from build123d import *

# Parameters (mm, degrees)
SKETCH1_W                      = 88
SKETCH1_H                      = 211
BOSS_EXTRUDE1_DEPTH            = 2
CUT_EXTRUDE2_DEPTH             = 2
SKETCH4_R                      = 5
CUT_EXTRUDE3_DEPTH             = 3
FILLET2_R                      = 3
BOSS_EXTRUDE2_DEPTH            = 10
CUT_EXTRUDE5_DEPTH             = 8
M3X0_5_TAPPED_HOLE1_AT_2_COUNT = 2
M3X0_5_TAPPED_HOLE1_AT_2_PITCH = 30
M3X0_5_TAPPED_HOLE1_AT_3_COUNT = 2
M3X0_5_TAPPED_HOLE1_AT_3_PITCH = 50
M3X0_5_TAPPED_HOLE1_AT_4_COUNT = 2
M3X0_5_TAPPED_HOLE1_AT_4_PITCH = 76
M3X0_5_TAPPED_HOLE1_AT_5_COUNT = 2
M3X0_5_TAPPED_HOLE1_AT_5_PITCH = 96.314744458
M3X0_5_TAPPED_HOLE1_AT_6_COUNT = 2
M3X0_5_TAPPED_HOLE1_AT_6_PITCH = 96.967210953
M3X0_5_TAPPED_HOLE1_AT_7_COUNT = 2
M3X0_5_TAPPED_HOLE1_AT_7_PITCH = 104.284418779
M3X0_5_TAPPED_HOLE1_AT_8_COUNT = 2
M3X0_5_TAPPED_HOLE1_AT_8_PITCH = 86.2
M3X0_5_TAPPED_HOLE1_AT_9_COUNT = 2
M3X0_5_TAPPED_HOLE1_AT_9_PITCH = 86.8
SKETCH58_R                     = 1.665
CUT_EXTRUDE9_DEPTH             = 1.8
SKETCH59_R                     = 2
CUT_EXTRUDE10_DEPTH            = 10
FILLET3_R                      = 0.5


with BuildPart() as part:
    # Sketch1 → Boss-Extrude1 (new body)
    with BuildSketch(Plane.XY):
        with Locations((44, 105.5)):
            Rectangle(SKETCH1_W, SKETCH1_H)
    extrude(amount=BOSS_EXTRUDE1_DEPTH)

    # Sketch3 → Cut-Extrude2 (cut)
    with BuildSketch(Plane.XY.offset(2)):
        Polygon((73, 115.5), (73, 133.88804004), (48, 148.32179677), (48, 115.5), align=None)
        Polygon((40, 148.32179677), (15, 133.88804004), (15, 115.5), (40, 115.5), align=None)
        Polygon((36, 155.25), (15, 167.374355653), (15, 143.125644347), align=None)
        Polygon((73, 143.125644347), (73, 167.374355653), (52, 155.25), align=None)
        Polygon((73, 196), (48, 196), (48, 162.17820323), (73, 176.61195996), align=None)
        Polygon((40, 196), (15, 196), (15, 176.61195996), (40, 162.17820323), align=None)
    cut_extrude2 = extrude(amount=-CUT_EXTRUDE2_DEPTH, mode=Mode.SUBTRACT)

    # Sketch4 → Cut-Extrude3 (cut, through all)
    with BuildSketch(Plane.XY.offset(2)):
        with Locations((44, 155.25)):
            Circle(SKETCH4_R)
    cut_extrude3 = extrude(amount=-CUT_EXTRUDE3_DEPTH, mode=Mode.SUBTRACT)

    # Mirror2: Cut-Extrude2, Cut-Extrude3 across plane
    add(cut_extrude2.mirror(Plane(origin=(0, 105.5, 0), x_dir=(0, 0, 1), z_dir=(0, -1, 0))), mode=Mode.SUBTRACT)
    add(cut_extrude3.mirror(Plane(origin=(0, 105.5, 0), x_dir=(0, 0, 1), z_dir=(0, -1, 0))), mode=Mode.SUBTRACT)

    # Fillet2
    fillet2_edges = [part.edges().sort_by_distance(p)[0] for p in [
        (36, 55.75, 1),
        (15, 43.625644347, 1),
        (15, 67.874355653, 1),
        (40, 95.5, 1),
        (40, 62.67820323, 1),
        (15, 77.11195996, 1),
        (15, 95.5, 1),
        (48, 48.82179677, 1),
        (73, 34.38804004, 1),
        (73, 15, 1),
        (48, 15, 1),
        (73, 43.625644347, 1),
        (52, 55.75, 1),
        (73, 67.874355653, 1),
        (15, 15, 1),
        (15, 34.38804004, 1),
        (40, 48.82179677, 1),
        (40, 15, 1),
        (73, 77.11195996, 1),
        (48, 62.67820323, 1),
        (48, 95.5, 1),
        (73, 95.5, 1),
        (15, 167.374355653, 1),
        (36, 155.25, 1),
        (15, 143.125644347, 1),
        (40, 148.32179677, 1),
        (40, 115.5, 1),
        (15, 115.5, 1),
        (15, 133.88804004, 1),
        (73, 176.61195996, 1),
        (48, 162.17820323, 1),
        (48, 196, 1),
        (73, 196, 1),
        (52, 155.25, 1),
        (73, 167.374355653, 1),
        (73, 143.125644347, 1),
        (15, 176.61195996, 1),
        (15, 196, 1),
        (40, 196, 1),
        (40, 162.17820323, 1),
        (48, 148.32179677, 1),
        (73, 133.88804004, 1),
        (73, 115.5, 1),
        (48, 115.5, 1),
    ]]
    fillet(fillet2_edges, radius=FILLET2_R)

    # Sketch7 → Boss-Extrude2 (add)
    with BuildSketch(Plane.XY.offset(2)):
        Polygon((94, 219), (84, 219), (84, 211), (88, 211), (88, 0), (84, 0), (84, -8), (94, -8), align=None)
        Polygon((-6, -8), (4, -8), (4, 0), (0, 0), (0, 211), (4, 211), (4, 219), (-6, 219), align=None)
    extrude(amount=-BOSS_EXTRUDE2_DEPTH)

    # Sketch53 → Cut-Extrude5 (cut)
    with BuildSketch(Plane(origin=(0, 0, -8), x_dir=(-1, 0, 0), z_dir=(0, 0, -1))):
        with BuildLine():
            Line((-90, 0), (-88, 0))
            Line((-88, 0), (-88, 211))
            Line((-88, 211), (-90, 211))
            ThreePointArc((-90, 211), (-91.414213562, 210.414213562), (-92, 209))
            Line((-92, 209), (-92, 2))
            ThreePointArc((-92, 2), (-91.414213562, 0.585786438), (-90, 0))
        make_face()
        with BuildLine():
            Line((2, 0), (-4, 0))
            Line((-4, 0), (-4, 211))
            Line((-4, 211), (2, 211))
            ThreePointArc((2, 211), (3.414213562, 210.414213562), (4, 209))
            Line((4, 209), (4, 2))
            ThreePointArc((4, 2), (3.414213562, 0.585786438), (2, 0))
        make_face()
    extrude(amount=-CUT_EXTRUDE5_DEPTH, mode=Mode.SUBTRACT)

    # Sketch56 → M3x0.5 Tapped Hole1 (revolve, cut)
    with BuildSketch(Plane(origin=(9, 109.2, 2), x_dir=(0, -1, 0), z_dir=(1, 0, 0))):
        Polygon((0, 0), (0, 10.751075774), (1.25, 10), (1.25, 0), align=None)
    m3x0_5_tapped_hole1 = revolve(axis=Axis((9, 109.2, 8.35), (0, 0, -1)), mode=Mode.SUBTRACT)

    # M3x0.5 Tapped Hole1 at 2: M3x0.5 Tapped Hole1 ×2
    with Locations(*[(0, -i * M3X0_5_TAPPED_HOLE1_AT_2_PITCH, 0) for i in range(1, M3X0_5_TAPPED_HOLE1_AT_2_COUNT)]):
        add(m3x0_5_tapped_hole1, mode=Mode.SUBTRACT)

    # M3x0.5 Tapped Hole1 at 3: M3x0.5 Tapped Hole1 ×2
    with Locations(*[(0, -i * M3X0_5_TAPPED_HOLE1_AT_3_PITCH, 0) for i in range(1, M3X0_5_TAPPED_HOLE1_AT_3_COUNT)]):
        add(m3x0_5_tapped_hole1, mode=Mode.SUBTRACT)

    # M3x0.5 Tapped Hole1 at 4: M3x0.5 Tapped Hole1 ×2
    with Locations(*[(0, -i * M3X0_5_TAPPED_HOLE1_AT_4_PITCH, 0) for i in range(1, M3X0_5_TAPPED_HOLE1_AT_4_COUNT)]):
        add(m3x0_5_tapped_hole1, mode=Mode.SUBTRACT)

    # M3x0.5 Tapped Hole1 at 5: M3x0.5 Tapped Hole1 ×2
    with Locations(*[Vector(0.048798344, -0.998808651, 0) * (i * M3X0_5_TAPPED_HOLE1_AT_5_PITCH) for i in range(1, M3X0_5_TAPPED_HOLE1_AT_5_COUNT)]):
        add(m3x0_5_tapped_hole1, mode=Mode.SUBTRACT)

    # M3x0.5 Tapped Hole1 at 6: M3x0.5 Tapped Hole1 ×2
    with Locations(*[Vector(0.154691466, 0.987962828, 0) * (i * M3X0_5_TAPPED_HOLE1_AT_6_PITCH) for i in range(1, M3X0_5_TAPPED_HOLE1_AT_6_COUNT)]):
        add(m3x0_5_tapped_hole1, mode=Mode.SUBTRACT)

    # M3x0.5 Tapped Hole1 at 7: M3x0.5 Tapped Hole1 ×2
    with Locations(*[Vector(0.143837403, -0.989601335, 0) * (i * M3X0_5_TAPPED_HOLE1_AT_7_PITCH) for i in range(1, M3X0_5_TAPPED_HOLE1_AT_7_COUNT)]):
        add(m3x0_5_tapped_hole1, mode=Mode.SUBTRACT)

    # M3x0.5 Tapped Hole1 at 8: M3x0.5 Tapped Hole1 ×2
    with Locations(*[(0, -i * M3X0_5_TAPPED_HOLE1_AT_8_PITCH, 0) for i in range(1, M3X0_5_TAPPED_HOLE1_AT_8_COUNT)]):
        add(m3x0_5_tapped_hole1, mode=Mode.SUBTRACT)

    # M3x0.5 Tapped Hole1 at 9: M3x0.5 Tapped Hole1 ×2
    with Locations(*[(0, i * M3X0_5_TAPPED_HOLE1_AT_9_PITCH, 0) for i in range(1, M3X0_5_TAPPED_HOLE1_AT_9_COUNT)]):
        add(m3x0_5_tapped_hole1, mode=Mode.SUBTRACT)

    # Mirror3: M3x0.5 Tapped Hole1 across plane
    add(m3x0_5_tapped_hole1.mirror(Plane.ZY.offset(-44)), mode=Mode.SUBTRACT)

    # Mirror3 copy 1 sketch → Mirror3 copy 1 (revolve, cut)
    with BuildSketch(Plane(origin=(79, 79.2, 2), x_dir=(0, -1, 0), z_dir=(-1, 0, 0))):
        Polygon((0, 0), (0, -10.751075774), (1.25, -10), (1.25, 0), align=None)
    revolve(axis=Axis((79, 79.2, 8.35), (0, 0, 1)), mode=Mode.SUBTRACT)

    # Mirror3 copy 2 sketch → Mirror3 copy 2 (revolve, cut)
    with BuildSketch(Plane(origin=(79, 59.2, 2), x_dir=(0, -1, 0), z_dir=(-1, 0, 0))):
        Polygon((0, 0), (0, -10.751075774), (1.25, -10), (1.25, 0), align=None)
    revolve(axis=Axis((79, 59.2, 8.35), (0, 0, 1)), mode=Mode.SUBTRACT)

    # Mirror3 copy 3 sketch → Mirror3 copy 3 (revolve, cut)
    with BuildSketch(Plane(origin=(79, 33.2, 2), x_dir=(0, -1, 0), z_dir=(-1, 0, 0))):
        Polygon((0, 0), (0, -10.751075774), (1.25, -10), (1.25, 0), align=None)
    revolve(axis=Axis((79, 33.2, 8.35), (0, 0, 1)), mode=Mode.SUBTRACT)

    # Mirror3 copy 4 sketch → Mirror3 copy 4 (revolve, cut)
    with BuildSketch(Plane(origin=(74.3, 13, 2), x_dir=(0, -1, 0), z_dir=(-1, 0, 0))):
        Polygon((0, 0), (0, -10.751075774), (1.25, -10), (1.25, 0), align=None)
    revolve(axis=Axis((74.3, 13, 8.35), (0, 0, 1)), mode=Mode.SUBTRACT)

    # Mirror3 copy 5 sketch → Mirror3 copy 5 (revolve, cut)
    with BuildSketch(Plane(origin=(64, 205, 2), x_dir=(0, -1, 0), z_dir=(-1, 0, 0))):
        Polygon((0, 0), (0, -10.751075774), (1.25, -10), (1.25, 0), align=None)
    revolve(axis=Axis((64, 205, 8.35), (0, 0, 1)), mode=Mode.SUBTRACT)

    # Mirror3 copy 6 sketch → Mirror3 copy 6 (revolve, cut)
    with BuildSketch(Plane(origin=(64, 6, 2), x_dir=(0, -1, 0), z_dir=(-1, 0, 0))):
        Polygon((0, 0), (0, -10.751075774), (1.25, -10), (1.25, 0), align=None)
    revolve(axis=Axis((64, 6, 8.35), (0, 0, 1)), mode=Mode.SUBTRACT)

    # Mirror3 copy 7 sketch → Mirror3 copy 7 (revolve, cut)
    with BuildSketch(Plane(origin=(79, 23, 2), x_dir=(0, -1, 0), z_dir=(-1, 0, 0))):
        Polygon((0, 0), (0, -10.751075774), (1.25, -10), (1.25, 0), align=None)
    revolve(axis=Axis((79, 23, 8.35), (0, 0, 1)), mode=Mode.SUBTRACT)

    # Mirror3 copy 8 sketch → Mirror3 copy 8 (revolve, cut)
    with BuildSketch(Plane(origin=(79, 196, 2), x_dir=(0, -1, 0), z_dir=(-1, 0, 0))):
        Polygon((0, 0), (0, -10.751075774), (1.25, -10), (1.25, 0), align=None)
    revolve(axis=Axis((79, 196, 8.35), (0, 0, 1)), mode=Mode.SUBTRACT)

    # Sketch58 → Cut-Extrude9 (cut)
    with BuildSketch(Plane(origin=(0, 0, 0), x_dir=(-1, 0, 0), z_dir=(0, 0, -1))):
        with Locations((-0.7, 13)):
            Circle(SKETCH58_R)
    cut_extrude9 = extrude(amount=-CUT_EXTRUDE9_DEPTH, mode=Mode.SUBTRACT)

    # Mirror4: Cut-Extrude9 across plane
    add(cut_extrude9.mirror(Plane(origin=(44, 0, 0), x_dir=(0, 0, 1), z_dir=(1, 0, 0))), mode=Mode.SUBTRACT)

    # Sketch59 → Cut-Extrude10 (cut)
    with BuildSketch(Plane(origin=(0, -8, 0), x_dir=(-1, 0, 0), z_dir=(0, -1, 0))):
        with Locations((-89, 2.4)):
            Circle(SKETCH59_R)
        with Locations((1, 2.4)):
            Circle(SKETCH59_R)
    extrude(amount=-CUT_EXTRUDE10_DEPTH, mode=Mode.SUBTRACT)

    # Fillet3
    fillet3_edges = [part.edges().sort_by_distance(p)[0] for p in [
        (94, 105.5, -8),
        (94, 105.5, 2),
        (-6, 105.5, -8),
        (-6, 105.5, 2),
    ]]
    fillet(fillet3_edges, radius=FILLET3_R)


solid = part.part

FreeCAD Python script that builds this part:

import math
import FreeCAD as App
import Part
import Sketcher

V = App.Vector
Q = App.Units.Quantity


def edges_at(feature, points):
    """Names of the edges that pass closest to the given points."""
    edges = feature.Shape.Edges
    near = lambda p: min(range(len(edges)), key=lambda i: edges[i].distToShape(Part.Vertex(*p))[0])
    return sorted({f"Edge{near(p) + 1}" for p in points})


def add_polygon(sketch, points):
    """Adds a closed chain of lines whose ends are joined by coincident constraints."""
    first, n = sketch.GeometryCount, len(points)
    for a, b in zip(points, points[1:] + points[:1]):
        sketch.addGeometry(Part.LineSegment(App.Vector(*a, 0), App.Vector(*b, 0)), False)
    for i in range(n):
        sketch.addConstraint(Sketcher.Constraint("Coincident", first + i, 2, first + (i + 1) % n, 1))

doc = App.newDocument("Part")
body = doc.addObject("PartDesign::Body", "Body")

# Sketch on XY plane
sketch1 = body.newObject("Sketcher::SketchObject", "Sketch")
sketch1.AttachmentSupport = (doc.getObject("XY_Plane"), [""])
sketch1.MapMode = "FlatFace"
add_polygon(sketch1, [(0, 211), (0, 0), (88, 0), (88, 211)])  # lines 0-3
sketch1.addConstraint([
    Sketcher.Constraint("Vertical", 0),
    Sketcher.Constraint("Horizontal", 1),
    Sketcher.Constraint("Vertical", 2),
    Sketcher.Constraint("Horizontal", 3),
    Sketcher.Constraint("Coincident", 0, 2, -1, 1),
    Sketcher.Constraint("DistanceX", 1, 1, 1, 2, 88.0),
    Sketcher.Constraint("DistanceY", 0, 2, 0, 1, 211.0),
])
pad1 = body.newObject("PartDesign::Pad", "Pad")
pad1.Profile = sketch1
pad1.Length = 2

# Sketch on XY plane
sketch2 = body.newObject("Sketcher::SketchObject", "Sketch001")
sketch2.AttachmentSupport = (doc.getObject("XY_Plane"), [""])
sketch2.MapMode = "FlatFace"
sketch2.AttachmentOffset = App.Placement(V(0, 0, 2), App.Rotation())
add_polygon(sketch2, [(73, 115.5), (73, 133.88804), (48, 148.321797), (48, 115.5)])  # lines 0-3
add_polygon(sketch2, [(40, 148.321797), (15, 133.88804), (15, 115.5), (40, 115.5)])  # lines 4-7
add_polygon(sketch2, [(36, 155.25), (15, 167.374356), (15, 143.125644)])  # lines 8-10
add_polygon(sketch2, [(73, 143.125644), (73, 167.374356), (52, 155.25)])  # lines 11-13
add_polygon(sketch2, [(73, 196), (48, 196), (48, 162.178203), (73, 176.61196)])  # lines 14-17
add_polygon(sketch2, [(40, 196), (15, 196), (15, 176.61196), (40, 162.178203)])  # lines 18-21
sketch2.addConstraint([
    Sketcher.Constraint("Vertical", 0),
    Sketcher.Constraint("Vertical", 2),
    Sketcher.Constraint("Horizontal", 3),
    Sketcher.Constraint("Vertical", 5),
    Sketcher.Constraint("Horizontal", 6),
    Sketcher.Constraint("Vertical", 7),
    Sketcher.Constraint("Vertical", 9),
    Sketcher.Constraint("Vertical", 11),
    Sketcher.Constraint("Horizontal", 14),
    Sketcher.Constraint("Vertical", 15),
    Sketcher.Constraint("Vertical", 17),
    Sketcher.Constraint("Horizontal", 18),
    Sketcher.Constraint("Vertical", 19),
    Sketcher.Constraint("Vertical", 21),
    Sketcher.Constraint("Parallel", 1, 8),
    Sketcher.Constraint("Parallel", 4, 10),
    Sketcher.Constraint("Parallel", 10, 12),
    Sketcher.Constraint("Parallel", 8, 13),
    Sketcher.Constraint("Parallel", 12, 16),
    Sketcher.Constraint("Parallel", 13, 20),
    Sketcher.Constraint("Horizontal", 0, 2, 4, 2),
    Sketcher.Constraint("Horizontal", 3, 2, 5, 2),
    Sketcher.Constraint("Horizontal", 1, 2, 7, 2),
    Sketcher.Constraint("Horizontal", 8, 2, 11, 2),
    Sketcher.Constraint("Horizontal", 10, 2, 12, 2),
    Sketcher.Constraint("Horizontal", 9, 2, 13, 2),
    Sketcher.Constraint("Horizontal", 17, 2, 18, 2),
    Sketcher.Constraint("Horizontal", 16, 2, 19, 2),
    Sketcher.Constraint("Horizontal", 15, 2, 20, 2),
    Sketcher.Constraint("Vertical", 5, 2, 8, 2),
    Sketcher.Constraint("Vertical", 3, 2, 11, 2),
    Sketcher.Constraint("Vertical", 2, 2, 14, 2),
    Sketcher.Constraint("Vertical", 13, 2, 16, 2),
    Sketcher.Constraint("Vertical", 9, 2, 18, 2),
    Sketcher.Constraint("DistanceX", 3, 1, 3, 2, 25.0),
    Sketcher.Constraint("Angle", 1, Q("150 deg")),
    Sketcher.Constraint("DistanceX", -1, 1, 0, 2, 73.0),
    Sketcher.Constraint("DistanceX", -1, 1, 4, 2, 15.0),
    Sketcher.Constraint("DistanceX", -1, 1, 10, 2, 36.0),
    Sketcher.Constraint("DistanceY", -1, 1, 14, 2, 196.0),
    Sketcher.Constraint("DistanceY", -1, 1, 2, 2, 115.5),
    Sketcher.Constraint("DistanceY", -1, 1, 10, 2, 155.25),
    Sketcher.Constraint("DistanceY", 0, 1, 0, 2, 18.38804),
    Sketcher.Constraint("DistanceY", 17, 1, 17, 2, 19.38804),
])
pocket1 = body.newObject("PartDesign::Pocket", "Pocket")
pocket1.Profile = sketch2
pocket1.Length = 2

# Sketch on XY plane
sketch3 = body.newObject("Sketcher::SketchObject", "Sketch002")
sketch3.AttachmentSupport = (doc.getObject("XY_Plane"), [""])
sketch3.MapMode = "FlatFace"
sketch3.AttachmentOffset = App.Placement(V(0, 0, 2), App.Rotation())
sketch3.addGeometry(Part.Circle(V(44, 155.25, 0), V(0, 0, 1), 5), False)
sketch3.addConstraint([
    Sketcher.Constraint("Diameter", 0, 10.0),
    Sketcher.Constraint("DistanceX", -1, 1, 0, 3, 44.0),
    Sketcher.Constraint("DistanceY", -1, 1, 0, 3, 155.25),
])
pocket2 = body.newObject("PartDesign::Pocket", "Pocket001")
pocket2.Profile = sketch3
pocket2.Type = "ThroughAll"
doc.recompute()

datumplane = body.newObject("PartDesign::Plane", "DatumPlane")
datumplane.AttachmentSupport = (doc.getObject("XZ_Plane"), [""])
datumplane.MapMode = "FlatFace"
datumplane.AttachmentOffset = App.Placement(V(0, 0, -105.5), App.Rotation())
mirrored = body.newObject("PartDesign::Mirrored", "Mirrored")
mirrored.Originals = [pocket1, pocket2]
mirrored.MirrorPlane = (datumplane, [""])
body.Tip = mirrored
doc.recompute()

fillet = body.newObject("PartDesign::Fillet", "Fillet")
fillet.Base = (mirrored, edges_at(mirrored, [
    (36, 55.75, 1),
    (15, 43.626, 1),
    (15, 67.874, 1),
    (40, 95.5, 1),
    (40, 62.678, 1),
    (15, 77.112, 1),
    (15, 95.5, 1),
    (48, 48.822, 1),
    (73, 34.388, 1),
    (73, 15, 1),
    (48, 15, 1),
    (73, 43.626, 1),
    (52, 55.75, 1),
    (73, 67.874, 1),
    (15, 15, 1),
    (15, 34.388, 1),
    (40, 48.822, 1),
    (40, 15, 1),
    (73, 77.112, 1),
    (48, 62.678, 1),
    (48, 95.5, 1),
    (73, 95.5, 1),
    (15, 167.374, 1),
    (36, 155.25, 1),
    (15, 143.126, 1),
    (40, 148.322, 1),
    (40, 115.5, 1),
    (15, 115.5, 1),
    (15, 133.888, 1),
    (73, 176.612, 1),
    (48, 162.178, 1),
    (48, 196, 1),
    (73, 196, 1),
    (52, 155.25, 1),
    (73, 167.374, 1),
    (73, 143.126, 1),
    (15, 176.612, 1),
    (15, 196, 1),
    (40, 196, 1),
    (40, 162.178, 1),
    (48, 148.322, 1),
    (73, 133.888, 1),
    (73, 115.5, 1),
    (48, 115.5, 1),
]))
fillet.Radius = 3

# Sketch on XY plane
sketch4 = body.newObject("Sketcher::SketchObject", "Sketch003")
sketch4.AttachmentSupport = (doc.getObject("XY_Plane"), [""])
sketch4.MapMode = "FlatFace"
sketch4.AttachmentOffset = App.Placement(V(0, 0, 2), App.Rotation())
add_polygon(sketch4, [(94, 219), (84, 219), (84, 211), (88, 211), (88, 0), (84, 0), (84, -8), (94, -8)])  # lines 0-7
add_polygon(sketch4, [(-6, -8), (4, -8), (4, 0), (0, 0), (0, 211), (4, 211), (4, 219), (-6, 219)])  # lines 8-15
sketch4.addConstraint([
    Sketcher.Constraint("Horizontal", 0),
    Sketcher.Constraint("Vertical", 1),
    Sketcher.Constraint("Horizontal", 2),
    Sketcher.Constraint("Vertical", 3),
    Sketcher.Constraint("Horizontal", 4),
    Sketcher.Constraint("Vertical", 5),
    Sketcher.Constraint("Horizontal", 6),
    Sketcher.Constraint("Vertical", 7),
    Sketcher.Constraint("Horizontal", 8),
    Sketcher.Constraint("Vertical", 9),
    Sketcher.Constraint("Horizontal", 10),
    Sketcher.Constraint("Vertical", 11),
    Sketcher.Constraint("Horizontal", 12),
    Sketcher.Constraint("Vertical", 13),
    Sketcher.Constraint("Horizontal", 14),
    Sketcher.Constraint("Vertical", 15),
    Sketcher.Constraint("Coincident", 10, 2, -1, 1),
    Sketcher.Constraint("PointOnObject", 3, 2, -1),
    Sketcher.Constraint("Horizontal", 6, 2, 8, 2),
    Sketcher.Constraint("Horizontal", 2, 2, 11, 2),
    Sketcher.Constraint("Horizontal", 7, 2, 13, 2),
    Sketcher.Constraint("Vertical", 1, 2, 4, 2),
    Sketcher.Constraint("Vertical", 9, 2, 12, 2),
    Sketcher.Constraint("Equal", 6, 8),
    Sketcher.Constraint("Equal", 4, 10),
    Sketcher.Constraint("Equal", 1, 5),
    Sketcher.Constraint("DistanceX", 0, 2, 0, 1, 10.0),
    Sketcher.Constraint("DistanceX", 2, 1, 2, 2, 4.0),
    Sketcher.Constraint("DistanceY", 1, 2, 1, 1, 8.0),
    Sketcher.Constraint("DistanceY", 3, 2, 3, 1, 211.0),
    Sketcher.Constraint("DistanceX", -1, 1, 0, 2, 84.0),
])
pad2 = body.newObject("PartDesign::Pad", "Pad001")
pad2.Profile = sketch4
pad2.Length = 10
pad2.Reversed = True

# Sketch on XY plane
sketch5 = body.newObject("Sketcher::SketchObject", "Sketch004")
sketch5.AttachmentSupport = (doc.getObject("XY_Plane"), [""])
sketch5.MapMode = "FlatFace"
sketch5.AttachmentOffset = App.Placement(V(0, 0, -8), App.Rotation())
sketch5.addGeometry([
    Part.LineSegment(V(90, 0, 0), V(88, 0, 0)),  # 0
    Part.LineSegment(V(88, 0, 0), V(88, 211, 0)),  # 1
    Part.LineSegment(V(88, 211, 0), V(90, 211, 0)),  # 2
    Part.ArcOfCircle(Part.Circle(V(90, 209, 0), V(0, 0, 1), 2), math.radians(0), math.radians(90)),  # 3
    Part.LineSegment(V(92, 209, 0), V(92, 2, 0)),  # 4
    Part.ArcOfCircle(Part.Circle(V(90, 2, 0), V(0, 0, 1), 2), math.radians(-90), math.radians(0)),  # 5
    Part.LineSegment(V(4, 0, 0), V(-2, 0, 0)),  # 6
    Part.ArcOfCircle(Part.Circle(V(-2, 2, 0), V(0, 0, 1), 2), math.radians(-180), math.radians(-90)),  # 7
    Part.LineSegment(V(-4, 2, 0), V(-4, 209, 0)),  # 8
    Part.ArcOfCircle(Part.Circle(V(-2, 209, 0), V(0, 0, 1), 2), math.radians(90), math.radians(180)),  # 9
    Part.LineSegment(V(-2, 211, 0), V(4, 211, 0)),  # 10
    Part.LineSegment(V(4, 211, 0), V(4, 0, 0)),  # 11
], False)
sketch5.addConstraint([
    Sketcher.Constraint("Coincident", 0, 2, 1, 1),
    Sketcher.Constraint("Coincident", 1, 2, 2, 1),
    Sketcher.Constraint("Tangent", 2, 2, 3, 2),
    Sketcher.Constraint("Tangent", 3, 1, 4, 1),
    Sketcher.Constraint("Tangent", 4, 2, 5, 2),
    Sketcher.Constraint("Tangent", 5, 1, 0, 1),
    Sketcher.Constraint("Tangent", 6, 2, 7, 2),
    Sketcher.Constraint("Tangent", 7, 1, 8, 1),
    Sketcher.Constraint("Tangent", 8, 2, 9, 2),
    Sketcher.Constraint("Tangent", 9, 1, 10, 1),
    Sketcher.Constraint("Coincident", 10, 2, 11, 1),
    Sketcher.Constraint("Coincident", 11, 2, 6, 1),
    Sketcher.Constraint("Horizontal", 0),
    Sketcher.Constraint("Vertical", 1),
    Sketcher.Constraint("Horizontal", 2),
    Sketcher.Constraint("Vertical", 4),
    Sketcher.Constraint("Horizontal", 6),
    Sketcher.Constraint("Vertical", 8),
    Sketcher.Constraint("Horizontal", 10),
    Sketcher.Constraint("Vertical", 11),
    Sketcher.Constraint("Equal", 3, 5),
    Sketcher.Constraint("Equal", 5, 7),
    Sketcher.Constraint("Equal", 7, 9),
    Sketcher.Constraint("PointOnObject", 0, 2, -1),
    Sketcher.Constraint("PointOnObject", 6, 2, -1),
    Sketcher.Constraint("Horizontal", 3, 3, 9, 3),
    Sketcher.Constraint("Radius", 3, 2.0),
    Sketcher.Constraint("DistanceX", 0, 2, 0, 1, 2.0),
    Sketcher.Constraint("DistanceX", 6, 2, 6, 1, 6.0),
    Sketcher.Constraint("DistanceY", 1, 1, 1, 2, 211.0),
    Sketcher.Constraint("DistanceX", -1, 1, 3, 3, 90.0),
    Sketcher.Constraint("DistanceX", 7, 3, -1, 1, 2.0),
])
pocket3 = body.newObject("PartDesign::Pocket", "Pocket002")
pocket3.Profile = sketch5
pocket3.Length = 8
pocket3.Reversed = True

# Sketch on YZ plane
sketch6 = body.newObject("Sketcher::SketchObject", "Sketch005")
sketch6.AttachmentSupport = (doc.getObject("YZ_Plane"), [""])
sketch6.MapMode = "FlatFace"
sketch6.AttachmentOffset = App.Placement(V(0, 0, 9), App.Rotation())
add_polygon(sketch6, [(109.2, -8.751076), (109.2, 2), (107.95, 2), (107.95, -8)])  # lines 0-3
sketch6.addGeometry(Part.LineSegment(V(109.2, 2, 0), V(109.2, -8.751076, 0)), True)  # axis
sketch6.addConstraint([
    Sketcher.Constraint("Vertical", 0),
    Sketcher.Constraint("Horizontal", 1),
    Sketcher.Constraint("Vertical", 2),
    Sketcher.Constraint("Vertical", 4),
    Sketcher.Constraint("Coincident", 4, 1, 0, 2),
    Sketcher.Constraint("Equal", 0, 4),
    Sketcher.Constraint("DistanceY", 2, 2, 2, 1, 10.0),
    Sketcher.Constraint("Angle", 3, Q("-31 deg")),
    Sketcher.Constraint("DistanceY", -1, 1, 0, 2, 2.0),
    Sketcher.Constraint("DistanceX", 1, 2, 1, 1, 1.25),
    Sketcher.Constraint("DistanceX", -1, 1, 0, 2, 109.2),
])
groove = body.newObject("PartDesign::Groove", "Groove")
groove.Profile = sketch6
groove.ReferenceAxis = (sketch6, ["Axis0"])
groove.Angle = 360
doc.recompute()

linearpattern = body.newObject("PartDesign::LinearPattern", "LinearPattern")
linearpattern.Originals = [groove]
linearpattern.Direction = (doc.getObject("Y_Axis"), [""])
linearpattern.Mode = "offset"
linearpattern.Offset = 30
linearpattern.Occurrences = 2
linearpattern.Reversed = True
body.Tip = linearpattern
doc.recompute()

linearpattern2 = body.newObject("PartDesign::LinearPattern", "LinearPattern001")
linearpattern2.Originals = [groove]
linearpattern2.Direction = (doc.getObject("Y_Axis"), [""])
linearpattern2.Mode = "offset"
linearpattern2.Offset = 50
linearpattern2.Occurrences = 2
linearpattern2.Reversed = True
body.Tip = linearpattern2
doc.recompute()

linearpattern3 = body.newObject("PartDesign::LinearPattern", "LinearPattern002")
linearpattern3.Originals = [groove]
linearpattern3.Direction = (doc.getObject("Y_Axis"), [""])
linearpattern3.Mode = "offset"
linearpattern3.Offset = 76
linearpattern3.Occurrences = 2
linearpattern3.Reversed = True
body.Tip = linearpattern3
doc.recompute()

datumline = body.newObject("PartDesign::Line", "DatumLine")
datumline.Placement = App.Placement(V(0, 0, 0), App.Rotation(V(0, 0, 1), V(0.048798344, -0.998808651, 0)))
linearpattern4 = body.newObject("PartDesign::LinearPattern", "LinearPattern003")
linearpattern4.Originals = [groove]
linearpattern4.Direction = (datumline, [""])
linearpattern4.Mode = "offset"
linearpattern4.Offset = 96.314744
linearpattern4.Occurrences = 2
body.Tip = linearpattern4
doc.recompute()

datumline2 = body.newObject("PartDesign::Line", "DatumLine001")
datumline2.Placement = App.Placement(V(0, 0, 0), App.Rotation(V(0, 0, 1), V(0.154691466, 0.987962828, 0)))
linearpattern5 = body.newObject("PartDesign::LinearPattern", "LinearPattern004")
linearpattern5.Originals = [groove]
linearpattern5.Direction = (datumline2, [""])
linearpattern5.Mode = "offset"
linearpattern5.Offset = 96.967211
linearpattern5.Occurrences = 2
body.Tip = linearpattern5
doc.recompute()

datumline3 = body.newObject("PartDesign::Line", "DatumLine002")
datumline3.Placement = App.Placement(V(0, 0, 0), App.Rotation(V(0, 0, 1), V(0.143837403, -0.989601335, 0)))
linearpattern6 = body.newObject("PartDesign::LinearPattern", "LinearPattern005")
linearpattern6.Originals = [groove]
linearpattern6.Direction = (datumline3, [""])
linearpattern6.Mode = "offset"
linearpattern6.Offset = 104.284419
linearpattern6.Occurrences = 2
body.Tip = linearpattern6
doc.recompute()

linearpattern7 = body.newObject("PartDesign::LinearPattern", "LinearPattern006")
linearpattern7.Originals = [groove]
linearpattern7.Direction = (doc.getObject("Y_Axis"), [""])
linearpattern7.Mode = "offset"
linearpattern7.Offset = 86.2
linearpattern7.Occurrences = 2
linearpattern7.Reversed = True
body.Tip = linearpattern7
doc.recompute()

linearpattern8 = body.newObject("PartDesign::LinearPattern", "LinearPattern007")
linearpattern8.Originals = [groove]
linearpattern8.Direction = (doc.getObject("Y_Axis"), [""])
linearpattern8.Mode = "offset"
linearpattern8.Offset = 86.8
linearpattern8.Occurrences = 2
body.Tip = linearpattern8
doc.recompute()

datumplane2 = body.newObject("PartDesign::Plane", "DatumPlane001")
datumplane2.AttachmentSupport = (doc.getObject("YZ_Plane"), [""])
datumplane2.MapMode = "FlatFace"
datumplane2.AttachmentOffset = App.Placement(V(0, 0, 44), App.Rotation())
mirrored2 = body.newObject("PartDesign::Mirrored", "Mirrored001")
mirrored2.Originals = [groove]
mirrored2.MirrorPlane = (datumplane2, [""])
body.Tip = mirrored2

# Sketch on YZ plane
sketch7 = body.newObject("Sketcher::SketchObject", "Sketch006")
sketch7.AttachmentSupport = (doc.getObject("YZ_Plane"), [""])
sketch7.MapMode = "FlatFace"
sketch7.AttachmentOffset = App.Placement(V(0, 0, 79), App.Rotation())
add_polygon(sketch7, [(79.2, 2), (79.2, -8.751076), (77.95, -8), (77.95, 2)])  # lines 0-3
sketch7.addGeometry(Part.LineSegment(V(79.2, -8.751076, 0), V(79.2, 2, 0)), True)  # axis
sketch7.addConstraint([
    Sketcher.Constraint("Vertical", 0),
    Sketcher.Constraint("Vertical", 2),
    Sketcher.Constraint("Horizontal", 3),
    Sketcher.Constraint("Vertical", 4),
    Sketcher.Constraint("Coincident", 4, 1, 0, 2),
    Sketcher.Constraint("Horizontal", 2, 2, 4, 2),
    Sketcher.Constraint("DistanceY", 2, 1, 2, 2, 10.0),
    Sketcher.Constraint("Angle", 1, Q("149 deg")),
    Sketcher.Constraint("DistanceY", 1, 2, -1, 1, 8.0),
    Sketcher.Constraint("DistanceX", 3, 1, 3, 2, 1.25),
    Sketcher.Constraint("DistanceX", -1, 1, 0, 2, 79.2),
])
groove2 = body.newObject("PartDesign::Groove", "Groove001")
groove2.Profile = sketch7
groove2.ReferenceAxis = (sketch7, ["Axis0"])
groove2.Angle = 360

# Sketch on YZ plane
sketch8 = body.newObject("Sketcher::SketchObject", "Sketch007")
sketch8.AttachmentSupport = (doc.getObject("YZ_Plane"), [""])
sketch8.MapMode = "FlatFace"
sketch8.AttachmentOffset = App.Placement(V(0, 0, 79), App.Rotation())
add_polygon(sketch8, [(59.2, 2), (59.2, -8.751076), (57.95, -8), (57.95, 2)])  # lines 0-3
sketch8.addGeometry(Part.LineSegment(V(59.2, -8.751076, 0), V(59.2, 2, 0)), True)  # axis
sketch8.addConstraint([
    Sketcher.Constraint("Vertical", 0),
    Sketcher.Constraint("Vertical", 2),
    Sketcher.Constraint("Horizontal", 3),
    Sketcher.Constraint("Vertical", 4),
    Sketcher.Constraint("Coincident", 4, 1, 0, 2),
    Sketcher.Constraint("Horizontal", 2, 2, 4, 2),
    Sketcher.Constraint("DistanceY", 2, 1, 2, 2, 10.0),
    Sketcher.Constraint("Angle", 1, Q("149 deg")),
    Sketcher.Constraint("DistanceY", 1, 2, -1, 1, 8.0),
    Sketcher.Constraint("DistanceX", 3, 1, 3, 2, 1.25),
    Sketcher.Constraint("DistanceX", -1, 1, 0, 2, 59.2),
])
groove3 = body.newObject("PartDesign::Groove", "Groove002")
groove3.Profile = sketch8
groove3.ReferenceAxis = (sketch8, ["Axis0"])
groove3.Angle = 360

# Sketch on YZ plane
sketch9 = body.newObject("Sketcher::SketchObject", "Sketch008")
sketch9.AttachmentSupport = (doc.getObject("YZ_Plane"), [""])
sketch9.MapMode = "FlatFace"
sketch9.AttachmentOffset = App.Placement(V(0, 0, 79), App.Rotation())
add_polygon(sketch9, [(33.2, 2), (33.2, -8.751076), (31.95, -8), (31.95, 2)])  # lines 0-3
sketch9.addGeometry(Part.LineSegment(V(33.2, -8.751076, 0), V(33.2, 2, 0)), True)  # axis
sketch9.addConstraint([
    Sketcher.Constraint("Vertical", 0),
    Sketcher.Constraint("Vertical", 2),
    Sketcher.Constraint("Horizontal", 3),
    Sketcher.Constraint("Vertical", 4),
    Sketcher.Constraint("Coincident", 4, 1, 0, 2),
    Sketcher.Constraint("Horizontal", 2, 2, 4, 2),
    Sketcher.Constraint("DistanceY", 2, 1, 2, 2, 10.0),
    Sketcher.Constraint("Angle", 1, Q("149 deg")),
    Sketcher.Constraint("DistanceY", 1, 2, -1, 1, 8.0),
    Sketcher.Constraint("DistanceX", 3, 1, 3, 2, 1.25),
    Sketcher.Constraint("DistanceX", -1, 1, 0, 2, 33.2),
])
groove4 = body.newObject("PartDesign::Groove", "Groove003")
groove4.Profile = sketch9
groove4.ReferenceAxis = (sketch9, ["Axis0"])
groove4.Angle = 360

# Sketch on YZ plane
sketch10 = body.newObject("Sketcher::SketchObject", "Sketch009")
sketch10.AttachmentSupport = (doc.getObject("YZ_Plane"), [""])
sketch10.MapMode = "FlatFace"
sketch10.AttachmentOffset = App.Placement(V(0, 0, 74.3), App.Rotation())
add_polygon(sketch10, [(13, 2), (13, -8.751076), (11.75, -8), (11.75, 2)])  # lines 0-3
sketch10.addGeometry(Part.LineSegment(V(13, -8.751076, 0), V(13, 2, 0)), True)  # axis
sketch10.addConstraint([
    Sketcher.Constraint("Vertical", 0),
    Sketcher.Constraint("Vertical", 2),
    Sketcher.Constraint("Horizontal", 3),
    Sketcher.Constraint("Vertical", 4),
    Sketcher.Constraint("Coincident", 4, 1, 0, 2),
    Sketcher.Constraint("Horizontal", 2, 2, 4, 2),
    Sketcher.Constraint("DistanceY", 2, 1, 2, 2, 10.0),
    Sketcher.Constraint("Angle", 1, Q("149 deg")),
    Sketcher.Constraint("DistanceX", -1, 1, 0, 2, 13.0),
    Sketcher.Constraint("DistanceY", 1, 2, -1, 1, 8.0),
    Sketcher.Constraint("DistanceX", 3, 1, 3, 2, 1.25),
])
groove5 = body.newObject("PartDesign::Groove", "Groove004")
groove5.Profile = sketch10
groove5.ReferenceAxis = (sketch10, ["Axis0"])
groove5.Angle = 360

# Sketch on YZ plane
sketch11 = body.newObject("Sketcher::SketchObject", "Sketch010")
sketch11.AttachmentSupport = (doc.getObject("YZ_Plane"), [""])
sketch11.MapMode = "FlatFace"
sketch11.AttachmentOffset = App.Placement(V(0, 0, 64), App.Rotation())
add_polygon(sketch11, [(205, 2), (205, -8.751076), (203.75, -8), (203.75, 2)])  # lines 0-3
sketch11.addGeometry(Part.LineSegment(V(205, -8.751076, 0), V(205, 2, 0)), True)  # axis
sketch11.addConstraint([
    Sketcher.Constraint("Vertical", 0),
    Sketcher.Constraint("Vertical", 2),
    Sketcher.Constraint("Horizontal", 3),
    Sketcher.Constraint("Vertical", 4),
    Sketcher.Constraint("Coincident", 4, 1, 0, 2),
    Sketcher.Constraint("Horizontal", 2, 2, 4, 2),
    Sketcher.Constraint("DistanceY", 2, 1, 2, 2, 10.0),
    Sketcher.Constraint("Angle", 1, Q("149 deg")),
    Sketcher.Constraint("DistanceX", -1, 1, 0, 2, 205.0),
    Sketcher.Constraint("DistanceY", 1, 2, -1, 1, 8.0),
    Sketcher.Constraint("DistanceX", 3, 1, 3, 2, 1.25),
])
groove6 = body.newObject("PartDesign::Groove", "Groove005")
groove6.Profile = sketch11
groove6.ReferenceAxis = (sketch11, ["Axis0"])
groove6.Angle = 360

# Sketch on YZ plane
sketch12 = body.newObject("Sketcher::SketchObject", "Sketch011")
sketch12.AttachmentSupport = (doc.getObject("YZ_Plane"), [""])
sketch12.MapMode = "FlatFace"
sketch12.AttachmentOffset = App.Placement(V(0, 0, 64), App.Rotation())
add_polygon(sketch12, [(6, 2), (6, -8.751076), (4.75, -8), (4.75, 2)])  # lines 0-3
sketch12.addGeometry(Part.LineSegment(V(6, -8.751076, 0), V(6, 2, 0)), True)  # axis
sketch12.addConstraint([
    Sketcher.Constraint("Vertical", 0),
    Sketcher.Constraint("Vertical", 2),
    Sketcher.Constraint("Horizontal", 3),
    Sketcher.Constraint("Vertical", 4),
    Sketcher.Constraint("Coincident", 4, 1, 0, 2),
    Sketcher.Constraint("Horizontal", 2, 2, 4, 2),
    Sketcher.Constraint("DistanceY", 2, 1, 2, 2, 10.0),
    Sketcher.Constraint("Angle", 1, Q("149 deg")),
    Sketcher.Constraint("DistanceX", -1, 1, 0, 2, 6.0),
    Sketcher.Constraint("DistanceY", 1, 2, -1, 1, 8.0),
    Sketcher.Constraint("DistanceX", 3, 1, 3, 2, 1.25),
])
groove7 = body.newObject("PartDesign::Groove", "Groove006")
groove7.Profile = sketch12
groove7.ReferenceAxis = (sketch12, ["Axis0"])
groove7.Angle = 360

# Sketch on YZ plane
sketch13 = body.newObject("Sketcher::SketchObject", "Sketch012")
sketch13.AttachmentSupport = (doc.getObject("YZ_Plane"), [""])
sketch13.MapMode = "FlatFace"
sketch13.AttachmentOffset = App.Placement(V(0, 0, 79), App.Rotation())
add_polygon(sketch13, [(23, 2), (23, -8.751076), (21.75, -8), (21.75, 2)])  # lines 0-3
sketch13.addGeometry(Part.LineSegment(V(23, -8.751076, 0), V(23, 2, 0)), True)  # axis
sketch13.addConstraint([
    Sketcher.Constraint("Vertical", 0),
    Sketcher.Constraint("Vertical", 2),
    Sketcher.Constraint("Horizontal", 3),
    Sketcher.Constraint("Vertical", 4),
    Sketcher.Constraint("Coincident", 4, 1, 0, 2),
    Sketcher.Constraint("Horizontal", 2, 2, 4, 2),
    Sketcher.Constraint("DistanceY", 2, 1, 2, 2, 10.0),
    Sketcher.Constraint("Angle", 1, Q("149 deg")),
    Sketcher.Constraint("DistanceX", -1, 1, 0, 2, 23.0),
    Sketcher.Constraint("DistanceY", 1, 2, -1, 1, 8.0),
    Sketcher.Constraint("DistanceX", 3, 1, 3, 2, 1.25),
])
groove8 = body.newObject("PartDesign::Groove", "Groove007")
groove8.Profile = sketch13
groove8.ReferenceAxis = (sketch13, ["Axis0"])
groove8.Angle = 360

# Sketch on YZ plane
sketch14 = body.newObject("Sketcher::SketchObject", "Sketch013")
sketch14.AttachmentSupport = (doc.getObject("YZ_Plane"), [""])
sketch14.MapMode = "FlatFace"
sketch14.AttachmentOffset = App.Placement(V(0, 0, 79), App.Rotation())
add_polygon(sketch14, [(196, 2), (196, -8.751076), (194.75, -8), (194.75, 2)])  # lines 0-3
sketch14.addGeometry(Part.LineSegment(V(196, -8.751076, 0), V(196, 2, 0)), True)  # axis
sketch14.addConstraint([
    Sketcher.Constraint("Vertical", 0),
    Sketcher.Constraint("Vertical", 2),
    Sketcher.Constraint("Horizontal", 3),
    Sketcher.Constraint("Vertical", 4),
    Sketcher.Constraint("Coincident", 4, 1, 0, 2),
    Sketcher.Constraint("Horizontal", 2, 2, 4, 2),
    Sketcher.Constraint("DistanceY", 2, 1, 2, 2, 10.0),
    Sketcher.Constraint("Angle", 1, Q("149 deg")),
    Sketcher.Constraint("DistanceX", -1, 1, 0, 2, 196.0),
    Sketcher.Constraint("DistanceY", 1, 2, -1, 1, 8.0),
    Sketcher.Constraint("DistanceX", 3, 1, 3, 2, 1.25),
])
groove9 = body.newObject("PartDesign::Groove", "Groove008")
groove9.Profile = sketch14
groove9.ReferenceAxis = (sketch14, ["Axis0"])
groove9.Angle = 360

# Sketch on XY plane
sketch15 = body.newObject("Sketcher::SketchObject", "Sketch014")
sketch15.AttachmentSupport = (doc.getObject("XY_Plane"), [""])
sketch15.MapMode = "FlatFace"
sketch15.addGeometry(Part.Circle(V(0.7, 13, 0), V(0, 0, 1), 1.665), False)
sketch15.addConstraint([
    Sketcher.Constraint("Diameter", 0, 3.33),
    Sketcher.Constraint("DistanceY", -1, 1, 0, 3, 13.0),
    Sketcher.Constraint("DistanceX", -1, 1, 0, 3, 0.7),
])
pocket4 = body.newObject("PartDesign::Pocket", "Pocket003")
pocket4.Profile = sketch15
pocket4.Length = 1.8
pocket4.Reversed = True
doc.recompute()

datumplane3 = body.newObject("PartDesign::Plane", "DatumPlane002")
datumplane3.AttachmentSupport = (doc.getObject("YZ_Plane"), [""])
datumplane3.MapMode = "FlatFace"
datumplane3.AttachmentOffset = App.Placement(V(0, 0, 44), App.Rotation())
mirrored3 = body.newObject("PartDesign::Mirrored", "Mirrored002")
mirrored3.Originals = [pocket4]
mirrored3.MirrorPlane = (datumplane3, [""])
body.Tip = mirrored3

# Sketch on XZ plane
sketch16 = body.newObject("Sketcher::SketchObject", "Sketch015")
sketch16.AttachmentSupport = (doc.getObject("XZ_Plane"), [""])
sketch16.MapMode = "FlatFace"
sketch16.AttachmentOffset = App.Placement(V(0, 0, 8), App.Rotation())
sketch16.addGeometry([
    Part.Circle(V(89, -2.4, 0), V(0, 0, 1), 2),
    Part.Circle(V(-1, -2.4, 0), V(0, 0, 1), 2),
], False)
sketch16.addConstraint([
    Sketcher.Constraint("Equal", 0, 1),
    Sketcher.Constraint("Horizontal", 0, 3, 1, 3),
    Sketcher.Constraint("Diameter", 0, 4.0),
    Sketcher.Constraint("DistanceX", -1, 1, 0, 3, 89.0),
    Sketcher.Constraint("DistanceX", 1, 3, -1, 1, 1.0),
    Sketcher.Constraint("DistanceY", 0, 3, -1, 1, 2.4),
])
pocket5 = body.newObject("PartDesign::Pocket", "Pocket004")
pocket5.Profile = sketch16
pocket5.Length = 10
doc.recompute()

fillet2 = body.newObject("PartDesign::Fillet", "Fillet001")
fillet2.Base = (pocket5, edges_at(pocket5, [
    (94, 105.5, -8),
    (94, 105.5, 2),
    (-6, 105.5, -8),
    (-6, 105.5, 2),
]))
fillet2.Radius = 0.5

doc.recompute()
